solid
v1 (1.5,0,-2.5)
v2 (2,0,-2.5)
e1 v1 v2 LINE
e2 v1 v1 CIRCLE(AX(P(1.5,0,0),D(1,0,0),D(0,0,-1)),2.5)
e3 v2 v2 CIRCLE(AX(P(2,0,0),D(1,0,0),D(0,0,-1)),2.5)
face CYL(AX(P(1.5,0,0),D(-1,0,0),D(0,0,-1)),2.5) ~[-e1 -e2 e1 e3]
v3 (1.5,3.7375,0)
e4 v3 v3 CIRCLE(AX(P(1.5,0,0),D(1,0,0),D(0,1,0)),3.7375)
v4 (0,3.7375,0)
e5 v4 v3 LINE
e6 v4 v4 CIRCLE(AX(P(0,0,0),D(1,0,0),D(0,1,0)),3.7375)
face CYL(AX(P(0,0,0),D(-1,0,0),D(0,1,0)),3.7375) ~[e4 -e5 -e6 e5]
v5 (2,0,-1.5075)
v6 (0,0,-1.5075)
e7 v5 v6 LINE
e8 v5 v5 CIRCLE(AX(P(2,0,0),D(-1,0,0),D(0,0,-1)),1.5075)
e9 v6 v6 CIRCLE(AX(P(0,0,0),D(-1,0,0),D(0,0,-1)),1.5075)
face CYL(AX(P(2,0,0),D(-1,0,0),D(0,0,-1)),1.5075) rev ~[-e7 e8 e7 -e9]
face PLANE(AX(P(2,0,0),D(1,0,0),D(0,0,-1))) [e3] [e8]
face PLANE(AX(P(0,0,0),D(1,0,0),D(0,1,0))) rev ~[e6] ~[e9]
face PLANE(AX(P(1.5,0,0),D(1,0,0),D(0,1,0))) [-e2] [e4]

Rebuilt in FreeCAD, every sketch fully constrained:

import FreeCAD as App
import Part
import Sketcher
Q = App.Units.Quantity

doc = App.newDocument("Part")
params = doc.addObject("Spreadsheet::Sheet", "Params")
for row, (alias, value) in enumerate([
    ("pad1_length", "1.5 mm"),
    ("sketch2_diameter", "5 mm"),
    ("pad2_length", "0.5 mm"),
    ("hole_diameter", "3.015 mm"),
], start=1):
    params.set(f"A{row}", alias)
    params.set(f"B{row}", "=" + value)
    params.setAlias(f"B{row}", alias)

body = doc.addObject("PartDesign::Body", "Body")

# Sketch on YZ plane
sketch1 = body.newObject("Sketcher::SketchObject", "Sketch")
sketch1.AttachmentSupport = (doc.getObject("YZ_Plane"), [""])
sketch1.MapMode = "FlatFace"
sketch1.addGeometry(Part.Circle(App.Vector(0, 0, 0), App.Vector(0, 0, 1), 3.7375), False)
sketch1.addConstraint([
    Sketcher.Constraint("Coincident", 0, 3, -1, 1),
    Sketcher.Constraint("Diameter", 0, Q("7.475 mm")),
])
pad1 = body.newObject("PartDesign::Pad", "Pad")
pad1.Profile = sketch1
pad1.setExpression("Length", "Params.pad1_length")

# Sketch on YZ plane
sketch2 = body.newObject("Sketcher::SketchObject", "Sketch001")
sketch2.AttachmentSupport = (doc.getObject("YZ_Plane"), [""])
sketch2.MapMode = "FlatFace"
sketch2.AttachmentOffset = App.Placement(App.Vector(0, 0, 1.5), App.Rotation())
sketch2.addGeometry(Part.Circle(App.Vector(0, 0, 0), App.Vector(0, 0, 1), 2.5), False)
sketch2.addConstraint([
    Sketcher.Constraint("Coincident", 0, 3, -1, 1),
    Sketcher.Constraint("Diameter", 0, Q("5 mm")),
])
sketch2.setExpression("Constraints[1]", "Params.sketch2_diameter")
pad2 = body.newObject("PartDesign::Pad", "Pad001")
pad2.Profile = sketch2
pad2.setExpression("Length", "Params.pad2_length")

# Sketch on YZ plane
sketch3 = body.newObject("Sketcher::SketchObject", "Sketch002")
sketch3.AttachmentSupport = (doc.getObject("YZ_Plane"), [""])
sketch3.MapMode = "FlatFace"
sketch3.AttachmentOffset = App.Placement(App.Vector(0, 0, 2), App.Rotation())
sketch3.addGeometry(Part.Circle(App.Vector(0, 0, 0), App.Vector(0, 0, 1), 1.5075), False)
sketch3.addConstraint([
    Sketcher.Constraint("Coincident", 0, 3, -1, 1),
    Sketcher.Constraint("Diameter", 0, Q("3.015 mm")),
])
doc.recompute()
hole = body.newObject("PartDesign::Hole", "Hole")
hole.Profile = sketch3
hole.ThreadType = "None"
hole.setExpression("Diameter", "Params.hole_diameter")
hole.DepthType = "ThroughAll"

doc.recompute()
